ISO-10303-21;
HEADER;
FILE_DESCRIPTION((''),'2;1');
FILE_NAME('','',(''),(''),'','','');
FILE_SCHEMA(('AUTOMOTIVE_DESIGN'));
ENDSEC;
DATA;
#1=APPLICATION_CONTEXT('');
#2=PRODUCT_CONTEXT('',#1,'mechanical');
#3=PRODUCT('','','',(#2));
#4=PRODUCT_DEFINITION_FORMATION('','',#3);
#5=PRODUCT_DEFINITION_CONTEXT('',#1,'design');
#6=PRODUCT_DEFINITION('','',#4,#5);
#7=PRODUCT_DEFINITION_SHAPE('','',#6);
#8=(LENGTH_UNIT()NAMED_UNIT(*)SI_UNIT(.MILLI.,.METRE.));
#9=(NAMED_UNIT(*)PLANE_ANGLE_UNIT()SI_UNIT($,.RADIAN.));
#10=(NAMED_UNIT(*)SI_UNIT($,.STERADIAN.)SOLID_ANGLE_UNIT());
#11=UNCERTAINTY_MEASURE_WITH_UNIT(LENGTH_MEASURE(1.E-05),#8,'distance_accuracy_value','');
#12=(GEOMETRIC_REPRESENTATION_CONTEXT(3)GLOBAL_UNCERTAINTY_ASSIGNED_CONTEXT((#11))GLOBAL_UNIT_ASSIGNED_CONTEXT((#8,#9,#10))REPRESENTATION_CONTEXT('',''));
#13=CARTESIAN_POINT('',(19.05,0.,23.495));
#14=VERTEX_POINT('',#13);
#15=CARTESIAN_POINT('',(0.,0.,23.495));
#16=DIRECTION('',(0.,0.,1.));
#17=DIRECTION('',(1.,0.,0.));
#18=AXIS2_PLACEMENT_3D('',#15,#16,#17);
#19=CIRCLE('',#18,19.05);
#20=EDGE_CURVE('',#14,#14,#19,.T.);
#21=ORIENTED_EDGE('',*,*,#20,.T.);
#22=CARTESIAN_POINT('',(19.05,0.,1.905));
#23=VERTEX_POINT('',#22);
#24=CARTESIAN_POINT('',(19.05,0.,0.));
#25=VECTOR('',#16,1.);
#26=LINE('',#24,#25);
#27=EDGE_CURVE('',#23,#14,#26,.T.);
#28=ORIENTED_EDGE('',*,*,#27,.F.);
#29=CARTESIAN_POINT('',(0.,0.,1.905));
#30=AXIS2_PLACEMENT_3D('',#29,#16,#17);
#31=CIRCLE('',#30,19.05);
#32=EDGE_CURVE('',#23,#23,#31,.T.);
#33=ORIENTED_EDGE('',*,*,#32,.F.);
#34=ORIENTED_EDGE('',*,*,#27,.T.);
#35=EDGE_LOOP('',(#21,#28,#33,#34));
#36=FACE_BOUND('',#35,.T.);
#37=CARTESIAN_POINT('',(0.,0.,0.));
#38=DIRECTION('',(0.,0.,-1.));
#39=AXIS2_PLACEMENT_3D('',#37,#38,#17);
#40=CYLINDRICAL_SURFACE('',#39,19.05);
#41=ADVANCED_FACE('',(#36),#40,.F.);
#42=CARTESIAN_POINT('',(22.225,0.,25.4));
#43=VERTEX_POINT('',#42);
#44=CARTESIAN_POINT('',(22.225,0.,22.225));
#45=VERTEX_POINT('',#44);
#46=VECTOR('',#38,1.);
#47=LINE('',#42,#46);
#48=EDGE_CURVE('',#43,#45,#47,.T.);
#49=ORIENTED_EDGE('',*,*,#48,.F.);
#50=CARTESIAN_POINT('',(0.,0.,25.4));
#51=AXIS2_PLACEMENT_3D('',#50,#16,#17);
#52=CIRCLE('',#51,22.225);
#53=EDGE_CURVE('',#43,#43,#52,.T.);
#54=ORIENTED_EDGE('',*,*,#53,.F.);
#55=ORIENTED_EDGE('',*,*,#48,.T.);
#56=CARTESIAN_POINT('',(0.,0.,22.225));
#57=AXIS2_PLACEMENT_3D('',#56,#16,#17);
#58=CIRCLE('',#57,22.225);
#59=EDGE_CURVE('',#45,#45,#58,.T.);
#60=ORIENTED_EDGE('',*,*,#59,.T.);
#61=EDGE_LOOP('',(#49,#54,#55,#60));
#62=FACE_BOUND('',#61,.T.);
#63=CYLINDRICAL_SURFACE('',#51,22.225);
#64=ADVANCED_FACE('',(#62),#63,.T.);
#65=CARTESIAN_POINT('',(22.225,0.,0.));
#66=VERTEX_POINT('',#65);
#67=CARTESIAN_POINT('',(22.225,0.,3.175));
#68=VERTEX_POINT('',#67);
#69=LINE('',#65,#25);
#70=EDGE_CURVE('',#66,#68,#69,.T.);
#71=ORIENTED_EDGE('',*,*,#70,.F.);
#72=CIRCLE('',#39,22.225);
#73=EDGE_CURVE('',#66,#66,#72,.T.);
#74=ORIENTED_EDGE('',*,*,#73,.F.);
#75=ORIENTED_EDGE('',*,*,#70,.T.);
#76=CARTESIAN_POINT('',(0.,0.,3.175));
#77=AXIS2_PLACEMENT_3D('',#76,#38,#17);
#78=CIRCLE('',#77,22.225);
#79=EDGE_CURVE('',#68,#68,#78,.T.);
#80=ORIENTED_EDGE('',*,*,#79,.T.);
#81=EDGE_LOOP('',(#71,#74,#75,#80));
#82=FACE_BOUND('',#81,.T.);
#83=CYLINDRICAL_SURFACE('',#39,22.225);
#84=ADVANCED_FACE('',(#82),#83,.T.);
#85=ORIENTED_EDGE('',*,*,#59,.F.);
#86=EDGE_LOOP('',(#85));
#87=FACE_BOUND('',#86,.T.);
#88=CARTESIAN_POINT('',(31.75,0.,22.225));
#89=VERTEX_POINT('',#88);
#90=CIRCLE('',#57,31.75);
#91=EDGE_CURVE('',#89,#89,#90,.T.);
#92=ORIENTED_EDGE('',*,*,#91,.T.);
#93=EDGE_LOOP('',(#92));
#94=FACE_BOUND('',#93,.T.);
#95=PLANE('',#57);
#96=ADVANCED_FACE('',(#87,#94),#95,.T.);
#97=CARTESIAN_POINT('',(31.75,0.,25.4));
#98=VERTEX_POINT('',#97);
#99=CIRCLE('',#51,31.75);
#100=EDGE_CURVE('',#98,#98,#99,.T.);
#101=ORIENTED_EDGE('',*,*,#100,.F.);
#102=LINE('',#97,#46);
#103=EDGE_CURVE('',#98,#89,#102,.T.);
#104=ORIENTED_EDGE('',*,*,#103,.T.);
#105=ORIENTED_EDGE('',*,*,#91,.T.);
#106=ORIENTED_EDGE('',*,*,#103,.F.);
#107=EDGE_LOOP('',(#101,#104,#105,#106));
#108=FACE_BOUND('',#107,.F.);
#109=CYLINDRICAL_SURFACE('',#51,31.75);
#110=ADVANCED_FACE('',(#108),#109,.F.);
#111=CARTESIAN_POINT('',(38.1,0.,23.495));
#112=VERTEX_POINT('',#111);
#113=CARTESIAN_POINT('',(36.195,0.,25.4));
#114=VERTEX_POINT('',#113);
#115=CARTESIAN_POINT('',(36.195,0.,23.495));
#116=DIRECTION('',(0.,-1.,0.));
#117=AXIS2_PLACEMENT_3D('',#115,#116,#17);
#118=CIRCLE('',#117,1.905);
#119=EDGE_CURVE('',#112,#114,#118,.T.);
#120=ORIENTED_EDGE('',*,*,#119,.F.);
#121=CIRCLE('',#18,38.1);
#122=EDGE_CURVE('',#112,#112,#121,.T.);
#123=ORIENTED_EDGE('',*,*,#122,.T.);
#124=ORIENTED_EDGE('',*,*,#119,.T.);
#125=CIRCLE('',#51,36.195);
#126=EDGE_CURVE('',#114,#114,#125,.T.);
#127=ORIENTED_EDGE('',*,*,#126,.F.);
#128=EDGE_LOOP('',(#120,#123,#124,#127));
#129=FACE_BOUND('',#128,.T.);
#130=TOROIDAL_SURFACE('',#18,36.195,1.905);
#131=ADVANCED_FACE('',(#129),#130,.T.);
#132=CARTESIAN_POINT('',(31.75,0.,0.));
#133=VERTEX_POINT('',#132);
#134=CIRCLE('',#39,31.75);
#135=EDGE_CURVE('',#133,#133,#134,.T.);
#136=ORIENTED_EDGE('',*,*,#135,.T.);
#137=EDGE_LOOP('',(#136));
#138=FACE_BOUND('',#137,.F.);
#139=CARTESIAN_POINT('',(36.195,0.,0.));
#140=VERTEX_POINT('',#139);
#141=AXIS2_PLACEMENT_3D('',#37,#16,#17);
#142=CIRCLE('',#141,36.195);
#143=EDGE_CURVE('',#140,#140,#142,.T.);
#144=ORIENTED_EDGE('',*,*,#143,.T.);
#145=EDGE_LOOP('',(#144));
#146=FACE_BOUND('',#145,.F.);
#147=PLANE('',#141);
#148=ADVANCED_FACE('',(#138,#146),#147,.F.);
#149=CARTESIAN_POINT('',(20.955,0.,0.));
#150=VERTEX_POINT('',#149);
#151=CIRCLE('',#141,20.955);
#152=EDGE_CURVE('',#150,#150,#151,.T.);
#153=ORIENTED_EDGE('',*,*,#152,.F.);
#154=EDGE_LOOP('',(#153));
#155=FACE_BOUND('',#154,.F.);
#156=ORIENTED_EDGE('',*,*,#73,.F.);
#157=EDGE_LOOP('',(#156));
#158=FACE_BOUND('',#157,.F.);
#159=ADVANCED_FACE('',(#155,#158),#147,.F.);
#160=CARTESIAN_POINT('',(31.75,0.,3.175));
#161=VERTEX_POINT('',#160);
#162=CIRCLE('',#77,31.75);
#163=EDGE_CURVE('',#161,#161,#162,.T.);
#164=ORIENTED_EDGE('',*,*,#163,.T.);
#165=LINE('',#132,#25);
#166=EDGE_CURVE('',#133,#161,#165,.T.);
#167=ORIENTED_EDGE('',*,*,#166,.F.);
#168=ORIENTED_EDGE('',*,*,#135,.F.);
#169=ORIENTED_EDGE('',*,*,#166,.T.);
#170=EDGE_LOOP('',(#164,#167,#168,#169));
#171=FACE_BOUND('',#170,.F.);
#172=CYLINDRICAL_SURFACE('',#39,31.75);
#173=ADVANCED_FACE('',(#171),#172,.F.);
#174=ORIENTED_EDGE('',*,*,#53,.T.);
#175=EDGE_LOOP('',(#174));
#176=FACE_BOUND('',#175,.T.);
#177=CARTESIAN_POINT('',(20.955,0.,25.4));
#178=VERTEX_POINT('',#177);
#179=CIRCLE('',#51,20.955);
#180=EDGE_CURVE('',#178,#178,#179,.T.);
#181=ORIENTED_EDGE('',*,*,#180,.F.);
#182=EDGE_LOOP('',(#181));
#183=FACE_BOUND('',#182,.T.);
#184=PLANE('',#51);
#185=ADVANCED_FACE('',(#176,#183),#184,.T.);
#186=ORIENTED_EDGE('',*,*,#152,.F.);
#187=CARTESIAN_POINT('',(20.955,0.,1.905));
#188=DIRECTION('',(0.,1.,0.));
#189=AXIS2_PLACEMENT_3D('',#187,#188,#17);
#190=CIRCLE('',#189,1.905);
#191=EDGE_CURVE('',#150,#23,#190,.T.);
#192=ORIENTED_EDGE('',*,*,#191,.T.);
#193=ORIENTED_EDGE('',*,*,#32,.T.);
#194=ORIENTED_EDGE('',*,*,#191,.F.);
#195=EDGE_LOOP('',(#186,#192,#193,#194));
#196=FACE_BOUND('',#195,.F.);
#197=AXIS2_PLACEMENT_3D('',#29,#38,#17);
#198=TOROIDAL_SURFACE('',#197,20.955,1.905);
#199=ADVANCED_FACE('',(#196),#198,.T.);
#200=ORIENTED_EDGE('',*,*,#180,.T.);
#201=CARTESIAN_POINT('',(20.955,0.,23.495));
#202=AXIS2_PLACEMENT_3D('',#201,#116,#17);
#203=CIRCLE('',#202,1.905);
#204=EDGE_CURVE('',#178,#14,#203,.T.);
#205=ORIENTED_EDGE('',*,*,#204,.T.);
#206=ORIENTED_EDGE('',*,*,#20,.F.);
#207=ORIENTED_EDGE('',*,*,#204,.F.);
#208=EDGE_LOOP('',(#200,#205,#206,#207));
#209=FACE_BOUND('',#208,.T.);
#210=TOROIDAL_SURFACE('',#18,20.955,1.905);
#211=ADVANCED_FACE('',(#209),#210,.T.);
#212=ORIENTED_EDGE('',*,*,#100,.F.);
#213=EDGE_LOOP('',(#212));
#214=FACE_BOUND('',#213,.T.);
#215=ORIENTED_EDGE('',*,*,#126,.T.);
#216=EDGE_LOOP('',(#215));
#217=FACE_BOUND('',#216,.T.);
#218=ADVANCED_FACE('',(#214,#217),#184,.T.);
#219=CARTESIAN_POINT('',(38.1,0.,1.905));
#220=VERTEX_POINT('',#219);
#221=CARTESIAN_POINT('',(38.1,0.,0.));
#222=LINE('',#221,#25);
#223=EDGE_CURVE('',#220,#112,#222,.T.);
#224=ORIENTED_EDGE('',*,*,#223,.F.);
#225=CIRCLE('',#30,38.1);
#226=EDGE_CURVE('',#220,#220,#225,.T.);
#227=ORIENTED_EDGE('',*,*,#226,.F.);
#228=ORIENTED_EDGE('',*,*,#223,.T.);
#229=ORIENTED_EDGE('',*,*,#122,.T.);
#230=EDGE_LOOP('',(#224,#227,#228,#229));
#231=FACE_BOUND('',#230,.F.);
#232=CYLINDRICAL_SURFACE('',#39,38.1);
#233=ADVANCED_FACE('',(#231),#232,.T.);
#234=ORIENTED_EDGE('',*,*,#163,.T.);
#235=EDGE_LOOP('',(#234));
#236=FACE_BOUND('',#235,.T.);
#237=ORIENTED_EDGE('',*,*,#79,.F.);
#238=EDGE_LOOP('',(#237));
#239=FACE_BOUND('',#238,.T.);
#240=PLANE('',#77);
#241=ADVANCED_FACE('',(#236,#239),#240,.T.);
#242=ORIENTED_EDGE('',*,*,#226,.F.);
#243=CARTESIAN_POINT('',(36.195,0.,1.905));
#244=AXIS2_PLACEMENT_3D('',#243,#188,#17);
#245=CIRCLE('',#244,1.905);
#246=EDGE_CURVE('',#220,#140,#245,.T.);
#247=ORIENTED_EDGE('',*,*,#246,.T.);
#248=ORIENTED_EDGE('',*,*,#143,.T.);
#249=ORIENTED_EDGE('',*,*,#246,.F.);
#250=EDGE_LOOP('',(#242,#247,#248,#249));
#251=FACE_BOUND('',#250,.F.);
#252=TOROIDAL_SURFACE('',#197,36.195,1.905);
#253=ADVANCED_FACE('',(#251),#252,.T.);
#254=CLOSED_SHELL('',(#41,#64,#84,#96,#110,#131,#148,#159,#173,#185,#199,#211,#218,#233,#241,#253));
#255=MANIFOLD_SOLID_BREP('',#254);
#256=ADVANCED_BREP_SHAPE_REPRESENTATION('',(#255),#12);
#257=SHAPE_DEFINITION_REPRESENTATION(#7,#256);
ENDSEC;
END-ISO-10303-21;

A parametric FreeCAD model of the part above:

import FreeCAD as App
import Part
import Sketcher
from FreeCAD import Vector
Q = App.Units.Quantity


def edges_at(feature, points):
    """Names of the edges that pass closest to the given points."""
    edges = feature.Shape.Edges
    near = lambda p: min(range(len(edges)), key=lambda i: edges[i].distToShape(Part.Vertex(*p))[0])
    return sorted({f"Edge{near(p) + 1}" for p in points})

doc = App.newDocument("Part")
body = doc.addObject("PartDesign::Body", "Body")

# Sketch on XY plane
sketch1 = body.newObject("Sketcher::SketchObject", "Sketch")
sketch1.AttachmentSupport = (doc.getObject("XY_Plane"), [""])
sketch1.MapMode = "FlatFace"
sketch1.addGeometry(Part.Circle(Vector(0, 0, 0), Vector(0, 0, 1), 38), False)
sketch1.addGeometry(Part.Circle(Vector(0, 0, 0), Vector(0, 0, 1), 19), False)
sketch1.addConstraint(Sketcher.Constraint("Coincident", 0, 3, -1, 1))
sketch1.addConstraint(Sketcher.Constraint("Coincident", 1, 3, -1, 1))
sketch1.addConstraint(Sketcher.Constraint("Diameter", 0, Q("3 in")))
sketch1.addConstraint(Sketcher.Constraint("Diameter", 1, Q("1.5 in")))
pad1 = body.newObject("PartDesign::Pad", "Pad")
pad1.Profile = sketch1
pad1.Length = Q("1 in")

# Sketch on XY plane
sketch2 = body.newObject("Sketcher::SketchObject", "Sketch001")
sketch2.AttachmentSupport = (doc.getObject("XY_Plane"), [""])
sketch2.MapMode = "FlatFace"
sketch2.addGeometry(Part.Circle(Vector(0, 0, 0), Vector(0, 0, 1), 32), False)
sketch2.addGeometry(Part.Circle(Vector(0, 0, 0), Vector(0, 0, 1), 22), False)
sketch2.addConstraint(Sketcher.Constraint("Coincident", 0, 3, -1, 1))
sketch2.addConstraint(Sketcher.Constraint("Coincident", 1, 3, -1, 1))
sketch2.addConstraint(Sketcher.Constraint("Diameter", 0, Q("2.5 in")))
sketch2.addConstraint(Sketcher.Constraint("Diameter", 1, Q("1.75 in")))
pocket1 = body.newObject("PartDesign::Pocket", "Pocket")
pocket1.Profile = sketch2
pocket1.Length = Q("0.125 in")
pocket1.Reversed = True

# Sketch on XY plane
sketch3 = body.newObject("Sketcher::SketchObject", "Sketch002")
sketch3.AttachmentSupport = (doc.getObject("XY_Plane"), [""])
sketch3.MapMode = "FlatFace"
sketch3.AttachmentOffset = App.Placement(Vector(0, 0, 1 * 25.4), App.Rotation())
sketch3.addGeometry(Part.Circle(Vector(0, 0, 0), Vector(0, 0, 1), 32), False)
sketch3.addGeometry(Part.Circle(Vector(0, 0, 0), Vector(0, 0, 1), 22), False)
sketch3.addConstraint(Sketcher.Constraint("Coincident", 0, 3, -1, 1))
sketch3.addConstraint(Sketcher.Constraint("Coincident", 1, 3, -1, 1))
sketch3.addConstraint(Sketcher.Constraint("Diameter", 0, Q("2.5 in")))
sketch3.addConstraint(Sketcher.Constraint("Diameter", 1, Q("1.75 in")))
pocket2 = body.newObject("PartDesign::Pocket", "Pocket001")
pocket2.Profile = sketch3
pocket2.Length = Q("0.125 in")
doc.recompute()

fillet = body.newObject("PartDesign::Fillet", "Fillet")
fillet.Base = (pocket2, edges_at(pocket2, [
    (-38.1, 0, 0),
    (-38.1, 0, 25.4),
    (-19.05, 0, 0),
    (-19.05, 0, 25.4),
]))
fillet.Radius = Q("0.075 in")

doc.recompute()
